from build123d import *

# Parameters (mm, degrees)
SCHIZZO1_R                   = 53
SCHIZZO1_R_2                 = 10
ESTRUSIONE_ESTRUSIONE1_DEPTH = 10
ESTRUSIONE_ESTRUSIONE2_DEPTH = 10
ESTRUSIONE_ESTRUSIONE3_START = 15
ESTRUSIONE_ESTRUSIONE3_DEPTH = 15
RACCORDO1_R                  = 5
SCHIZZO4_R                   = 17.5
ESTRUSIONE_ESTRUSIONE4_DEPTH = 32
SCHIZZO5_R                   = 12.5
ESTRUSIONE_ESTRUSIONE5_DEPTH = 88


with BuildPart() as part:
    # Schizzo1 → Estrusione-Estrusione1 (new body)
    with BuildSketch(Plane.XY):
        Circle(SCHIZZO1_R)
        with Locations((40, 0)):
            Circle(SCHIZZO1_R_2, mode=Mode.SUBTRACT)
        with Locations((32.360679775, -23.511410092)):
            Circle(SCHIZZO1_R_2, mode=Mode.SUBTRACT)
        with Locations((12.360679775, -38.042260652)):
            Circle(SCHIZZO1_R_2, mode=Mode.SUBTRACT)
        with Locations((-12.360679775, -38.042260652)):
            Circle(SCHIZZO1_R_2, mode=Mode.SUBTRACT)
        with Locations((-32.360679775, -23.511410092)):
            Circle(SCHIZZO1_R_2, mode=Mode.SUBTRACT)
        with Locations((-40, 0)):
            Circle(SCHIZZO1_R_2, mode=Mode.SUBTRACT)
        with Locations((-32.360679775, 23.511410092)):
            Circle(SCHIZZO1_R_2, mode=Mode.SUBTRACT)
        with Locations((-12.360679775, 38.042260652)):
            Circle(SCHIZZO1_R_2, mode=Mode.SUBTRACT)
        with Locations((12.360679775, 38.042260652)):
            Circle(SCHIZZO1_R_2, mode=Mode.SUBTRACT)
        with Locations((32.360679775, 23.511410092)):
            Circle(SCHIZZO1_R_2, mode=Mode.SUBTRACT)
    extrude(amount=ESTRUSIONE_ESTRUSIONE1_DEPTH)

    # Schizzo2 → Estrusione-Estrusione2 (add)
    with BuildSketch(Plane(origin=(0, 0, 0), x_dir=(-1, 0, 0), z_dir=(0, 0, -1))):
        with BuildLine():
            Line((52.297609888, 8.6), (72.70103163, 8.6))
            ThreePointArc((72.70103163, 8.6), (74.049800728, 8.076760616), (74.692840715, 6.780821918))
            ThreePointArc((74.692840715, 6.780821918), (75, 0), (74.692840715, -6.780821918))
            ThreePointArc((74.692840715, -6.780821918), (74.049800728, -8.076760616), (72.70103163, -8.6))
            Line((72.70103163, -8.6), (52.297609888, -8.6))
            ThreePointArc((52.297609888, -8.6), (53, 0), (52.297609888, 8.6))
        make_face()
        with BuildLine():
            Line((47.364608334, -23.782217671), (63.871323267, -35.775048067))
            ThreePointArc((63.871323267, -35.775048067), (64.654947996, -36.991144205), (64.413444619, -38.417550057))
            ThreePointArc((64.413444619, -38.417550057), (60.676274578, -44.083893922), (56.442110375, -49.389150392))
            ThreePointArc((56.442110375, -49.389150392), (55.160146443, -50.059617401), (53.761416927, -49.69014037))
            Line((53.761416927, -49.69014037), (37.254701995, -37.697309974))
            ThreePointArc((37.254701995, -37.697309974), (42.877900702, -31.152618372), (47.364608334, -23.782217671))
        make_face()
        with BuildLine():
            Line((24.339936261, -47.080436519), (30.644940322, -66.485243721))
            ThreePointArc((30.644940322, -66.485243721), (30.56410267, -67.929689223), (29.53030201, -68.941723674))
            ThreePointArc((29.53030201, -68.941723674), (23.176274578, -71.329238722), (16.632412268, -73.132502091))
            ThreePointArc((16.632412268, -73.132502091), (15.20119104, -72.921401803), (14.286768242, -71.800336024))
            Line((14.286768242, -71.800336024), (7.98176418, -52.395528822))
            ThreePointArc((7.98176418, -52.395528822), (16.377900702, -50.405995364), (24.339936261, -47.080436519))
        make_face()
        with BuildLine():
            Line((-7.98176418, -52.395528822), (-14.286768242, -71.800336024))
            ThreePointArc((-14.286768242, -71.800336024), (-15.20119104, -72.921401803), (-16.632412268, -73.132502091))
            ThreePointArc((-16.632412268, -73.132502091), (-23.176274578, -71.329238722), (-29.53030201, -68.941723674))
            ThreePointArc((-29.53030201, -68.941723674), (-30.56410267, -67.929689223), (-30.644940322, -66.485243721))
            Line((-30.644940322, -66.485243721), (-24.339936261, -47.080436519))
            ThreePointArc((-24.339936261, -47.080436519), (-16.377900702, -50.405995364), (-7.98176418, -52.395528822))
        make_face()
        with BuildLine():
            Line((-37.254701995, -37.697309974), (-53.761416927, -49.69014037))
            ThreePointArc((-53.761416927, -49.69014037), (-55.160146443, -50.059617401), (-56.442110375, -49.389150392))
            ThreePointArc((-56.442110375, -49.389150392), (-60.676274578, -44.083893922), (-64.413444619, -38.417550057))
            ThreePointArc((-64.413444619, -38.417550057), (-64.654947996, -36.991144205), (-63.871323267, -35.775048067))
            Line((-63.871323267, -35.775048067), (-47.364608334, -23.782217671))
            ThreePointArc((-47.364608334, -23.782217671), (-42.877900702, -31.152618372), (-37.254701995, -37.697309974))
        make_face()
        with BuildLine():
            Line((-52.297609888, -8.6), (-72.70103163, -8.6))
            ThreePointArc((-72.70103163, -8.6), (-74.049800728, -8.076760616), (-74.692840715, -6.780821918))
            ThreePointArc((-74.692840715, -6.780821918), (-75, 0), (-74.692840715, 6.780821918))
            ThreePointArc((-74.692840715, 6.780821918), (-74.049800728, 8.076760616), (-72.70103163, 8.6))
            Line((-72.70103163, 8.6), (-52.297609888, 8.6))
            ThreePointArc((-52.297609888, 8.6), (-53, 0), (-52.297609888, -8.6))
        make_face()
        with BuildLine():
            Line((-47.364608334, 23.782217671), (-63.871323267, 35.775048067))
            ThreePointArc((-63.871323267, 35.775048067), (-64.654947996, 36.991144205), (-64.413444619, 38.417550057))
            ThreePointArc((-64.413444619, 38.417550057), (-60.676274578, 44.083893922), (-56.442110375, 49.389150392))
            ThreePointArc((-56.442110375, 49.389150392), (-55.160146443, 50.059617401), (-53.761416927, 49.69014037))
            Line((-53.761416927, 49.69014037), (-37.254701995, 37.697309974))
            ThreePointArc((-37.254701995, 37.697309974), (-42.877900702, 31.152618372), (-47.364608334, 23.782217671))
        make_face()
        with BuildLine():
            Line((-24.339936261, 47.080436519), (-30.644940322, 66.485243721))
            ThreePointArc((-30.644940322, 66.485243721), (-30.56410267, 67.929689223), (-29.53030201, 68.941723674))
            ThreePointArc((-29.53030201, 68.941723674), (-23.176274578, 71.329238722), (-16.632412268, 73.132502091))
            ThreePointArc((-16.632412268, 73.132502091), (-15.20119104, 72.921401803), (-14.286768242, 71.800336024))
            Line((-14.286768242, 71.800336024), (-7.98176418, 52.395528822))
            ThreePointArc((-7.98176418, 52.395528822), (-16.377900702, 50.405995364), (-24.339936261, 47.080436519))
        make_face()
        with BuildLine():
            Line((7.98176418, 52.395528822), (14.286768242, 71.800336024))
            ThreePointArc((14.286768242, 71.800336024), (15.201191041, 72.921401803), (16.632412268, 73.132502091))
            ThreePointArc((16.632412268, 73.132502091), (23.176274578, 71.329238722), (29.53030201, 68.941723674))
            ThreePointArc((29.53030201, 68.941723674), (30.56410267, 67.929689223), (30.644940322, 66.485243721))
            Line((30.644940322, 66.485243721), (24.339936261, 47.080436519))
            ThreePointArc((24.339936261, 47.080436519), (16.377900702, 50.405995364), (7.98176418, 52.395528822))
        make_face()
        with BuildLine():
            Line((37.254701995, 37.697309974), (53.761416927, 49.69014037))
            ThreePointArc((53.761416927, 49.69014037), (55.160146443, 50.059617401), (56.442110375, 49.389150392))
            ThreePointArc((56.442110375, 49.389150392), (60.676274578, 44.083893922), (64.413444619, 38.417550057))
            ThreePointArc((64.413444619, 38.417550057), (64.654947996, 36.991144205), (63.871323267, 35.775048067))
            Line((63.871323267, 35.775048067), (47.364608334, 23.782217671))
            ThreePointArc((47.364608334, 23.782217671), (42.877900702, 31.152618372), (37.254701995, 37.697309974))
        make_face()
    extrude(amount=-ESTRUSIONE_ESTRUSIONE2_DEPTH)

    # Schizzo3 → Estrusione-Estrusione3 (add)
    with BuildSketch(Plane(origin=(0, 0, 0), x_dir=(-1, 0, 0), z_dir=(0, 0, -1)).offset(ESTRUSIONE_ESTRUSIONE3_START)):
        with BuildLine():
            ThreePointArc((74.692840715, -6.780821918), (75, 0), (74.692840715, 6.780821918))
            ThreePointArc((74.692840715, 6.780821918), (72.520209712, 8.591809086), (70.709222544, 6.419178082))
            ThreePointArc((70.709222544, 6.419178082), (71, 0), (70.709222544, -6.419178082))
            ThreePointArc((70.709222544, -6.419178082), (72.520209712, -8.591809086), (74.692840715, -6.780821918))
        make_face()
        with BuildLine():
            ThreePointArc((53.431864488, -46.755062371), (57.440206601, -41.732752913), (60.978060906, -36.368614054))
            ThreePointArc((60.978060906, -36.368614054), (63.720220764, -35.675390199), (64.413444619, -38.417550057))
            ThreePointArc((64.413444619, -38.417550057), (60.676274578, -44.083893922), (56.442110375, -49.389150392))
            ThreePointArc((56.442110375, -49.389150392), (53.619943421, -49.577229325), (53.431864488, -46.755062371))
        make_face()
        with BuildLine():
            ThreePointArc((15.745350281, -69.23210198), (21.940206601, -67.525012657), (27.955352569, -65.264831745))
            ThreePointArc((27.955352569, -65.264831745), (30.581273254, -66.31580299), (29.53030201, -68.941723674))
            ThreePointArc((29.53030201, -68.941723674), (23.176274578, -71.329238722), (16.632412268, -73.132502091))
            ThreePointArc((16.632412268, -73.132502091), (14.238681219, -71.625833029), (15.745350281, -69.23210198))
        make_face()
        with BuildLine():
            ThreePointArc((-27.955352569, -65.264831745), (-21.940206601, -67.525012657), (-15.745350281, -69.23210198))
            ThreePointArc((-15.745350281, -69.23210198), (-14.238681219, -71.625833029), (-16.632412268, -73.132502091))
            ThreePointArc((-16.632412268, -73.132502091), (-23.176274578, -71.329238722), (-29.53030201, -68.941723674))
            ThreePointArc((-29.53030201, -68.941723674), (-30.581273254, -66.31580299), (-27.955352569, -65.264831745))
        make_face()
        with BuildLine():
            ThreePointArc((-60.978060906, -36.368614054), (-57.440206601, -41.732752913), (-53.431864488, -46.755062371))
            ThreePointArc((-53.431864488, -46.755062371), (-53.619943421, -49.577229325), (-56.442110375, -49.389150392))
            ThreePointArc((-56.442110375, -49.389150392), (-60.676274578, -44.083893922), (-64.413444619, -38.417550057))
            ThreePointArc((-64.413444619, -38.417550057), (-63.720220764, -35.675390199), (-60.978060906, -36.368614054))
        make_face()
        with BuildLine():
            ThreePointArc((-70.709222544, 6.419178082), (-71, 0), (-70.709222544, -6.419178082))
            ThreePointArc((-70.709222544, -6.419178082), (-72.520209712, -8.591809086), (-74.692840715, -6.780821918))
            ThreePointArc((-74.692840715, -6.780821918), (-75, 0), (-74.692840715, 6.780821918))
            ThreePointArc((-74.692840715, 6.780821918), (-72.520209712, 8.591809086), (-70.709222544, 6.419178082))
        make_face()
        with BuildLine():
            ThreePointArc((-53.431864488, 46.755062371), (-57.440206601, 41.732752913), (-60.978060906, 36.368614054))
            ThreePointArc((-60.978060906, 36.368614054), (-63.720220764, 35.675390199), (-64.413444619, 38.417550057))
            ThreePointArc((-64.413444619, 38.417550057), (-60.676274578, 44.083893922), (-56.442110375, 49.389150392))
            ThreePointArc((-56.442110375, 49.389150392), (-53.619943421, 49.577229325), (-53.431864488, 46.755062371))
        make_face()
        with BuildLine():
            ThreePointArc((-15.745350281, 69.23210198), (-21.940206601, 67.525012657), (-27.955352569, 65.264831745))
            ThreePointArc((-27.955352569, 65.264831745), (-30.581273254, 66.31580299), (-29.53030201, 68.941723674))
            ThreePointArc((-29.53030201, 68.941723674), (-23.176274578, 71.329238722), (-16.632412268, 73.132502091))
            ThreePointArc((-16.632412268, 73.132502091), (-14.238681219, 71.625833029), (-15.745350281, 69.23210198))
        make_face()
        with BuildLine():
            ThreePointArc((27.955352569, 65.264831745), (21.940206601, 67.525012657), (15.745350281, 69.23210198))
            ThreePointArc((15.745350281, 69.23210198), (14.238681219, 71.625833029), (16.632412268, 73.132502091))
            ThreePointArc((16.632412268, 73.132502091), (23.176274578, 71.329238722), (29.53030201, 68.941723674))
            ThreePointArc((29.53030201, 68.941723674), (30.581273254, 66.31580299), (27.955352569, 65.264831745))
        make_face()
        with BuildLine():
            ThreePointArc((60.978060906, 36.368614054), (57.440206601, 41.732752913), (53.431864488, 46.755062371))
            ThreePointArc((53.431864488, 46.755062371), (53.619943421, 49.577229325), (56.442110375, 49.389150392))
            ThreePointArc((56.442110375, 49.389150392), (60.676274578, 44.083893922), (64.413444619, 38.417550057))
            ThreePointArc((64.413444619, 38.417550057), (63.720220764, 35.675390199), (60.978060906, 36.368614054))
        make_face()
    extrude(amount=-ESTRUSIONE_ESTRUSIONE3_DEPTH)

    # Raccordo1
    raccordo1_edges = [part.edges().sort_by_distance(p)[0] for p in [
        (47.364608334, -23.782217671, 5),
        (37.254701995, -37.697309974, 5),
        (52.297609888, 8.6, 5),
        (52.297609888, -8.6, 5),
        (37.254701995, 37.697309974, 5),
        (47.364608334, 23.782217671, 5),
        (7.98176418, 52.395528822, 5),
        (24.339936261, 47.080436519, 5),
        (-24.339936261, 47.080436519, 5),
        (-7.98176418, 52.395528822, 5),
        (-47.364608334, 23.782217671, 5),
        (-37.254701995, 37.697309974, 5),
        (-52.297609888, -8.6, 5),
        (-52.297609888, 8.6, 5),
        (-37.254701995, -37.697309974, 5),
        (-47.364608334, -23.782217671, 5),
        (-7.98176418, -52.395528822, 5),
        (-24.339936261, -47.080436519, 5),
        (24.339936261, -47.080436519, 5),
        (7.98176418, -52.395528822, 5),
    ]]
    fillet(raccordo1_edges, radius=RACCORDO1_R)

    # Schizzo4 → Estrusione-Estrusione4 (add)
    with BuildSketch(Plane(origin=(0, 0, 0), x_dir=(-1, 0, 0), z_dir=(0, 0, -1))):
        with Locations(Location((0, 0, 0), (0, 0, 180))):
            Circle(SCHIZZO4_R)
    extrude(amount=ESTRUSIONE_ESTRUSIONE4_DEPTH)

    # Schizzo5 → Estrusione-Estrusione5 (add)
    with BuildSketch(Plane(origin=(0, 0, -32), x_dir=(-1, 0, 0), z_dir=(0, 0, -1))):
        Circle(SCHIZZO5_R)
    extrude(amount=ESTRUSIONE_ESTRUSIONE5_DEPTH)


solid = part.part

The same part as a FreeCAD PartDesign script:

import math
import FreeCAD as App
import Part
import Sketcher

V = App.Vector
Q = App.Units.Quantity


def edges_at(feature, points):
    """Names of the edges that pass closest to the given points."""
    edges = feature.Shape.Edges
    near = lambda p: min(range(len(edges)), key=lambda i: edges[i].distToShape(Part.Vertex(*p))[0])
    return sorted({f"Edge{near(p) + 1}" for p in points})

doc = App.newDocument("Part")
params = doc.addObject("Spreadsheet::Sheet", "Params")
for row, (alias, value) in enumerate([
    ("sketch1_diameter", "106 mm"),
    ("sketch1_diameter2", "20 mm"),
    ("pad1_length", "10 mm"),
    ("sketch2_radius", "53 mm"),
    ("sketch2_radius2", "2 mm"),
    ("sketch2_radius3", "75 mm"),
    ("pad2_length", "10 mm"),
    ("sketch3_radius", "75 mm"),
    ("sketch3_radius2", "2 mm"),
    ("pad3_length", "15 mm"),
    ("fillet_radius", "5 mm"),
    ("sketch4_diameter", "35 mm"),
    ("pad4_length", "32 mm"),
    ("sketch5_diameter", "25 mm"),
    ("pad5_length", "88 mm"),
], start=1):
    params.set(f"A{row}", alias)
    params.set(f"B{row}", "=" + value)
    params.setAlias(f"B{row}", alias)

body = doc.addObject("PartDesign::Body", "Body")

sketch1 = body.newObject("Sketcher::SketchObject", "Sketch")
sketch1.AttachmentSupport = (doc.getObject("XY_Plane"), [""])
sketch1.MapMode = "FlatFace"
sketch1.addGeometry([
    Part.Circle(V(0, 0, 0), V(0, 0, 1), 53),
    Part.Circle(V(-12, -38, 0), V(0, 0, 1), 10),
    Part.Circle(V(-32, -24, 0), V(0, 0, 1), 10),
    Part.Circle(V(12, -38, 0), V(0, 0, 1), 10),
    Part.Circle(V(32, -24, 0), V(0, 0, 1), 10),
    Part.Circle(V(-40, 0, 0), V(0, 0, 1), 10),
    Part.Circle(V(-32, 24, 0), V(0, 0, 1), 10),
    Part.Circle(V(-12, 38, 0), V(0, 0, 1), 10),
    Part.Circle(V(40, 0, 0), V(0, 0, 1), 10),
    Part.Circle(V(32, 24, 0), V(0, 0, 1), 10),
    Part.Circle(V(12, 38, 0), V(0, 0, 1), 10),
], False)
sketch1.addConstraint([
    Sketcher.Constraint("Coincident", 0, 3, -1, 1),
    Sketcher.Constraint("Equal", 1, 2),
    Sketcher.Constraint("Equal", 2, 3),
    Sketcher.Constraint("Equal", 3, 4),
    Sketcher.Constraint("Equal", 4, 5),
    Sketcher.Constraint("Equal", 5, 6),
    Sketcher.Constraint("Equal", 6, 7),
    Sketcher.Constraint("Equal", 7, 8),
    Sketcher.Constraint("Equal", 8, 9),
    Sketcher.Constraint("Equal", 9, 10),
    Sketcher.Constraint("Symmetric", 4, 3, 6, 3, -1, 1),
    Sketcher.Constraint("Symmetric", 3, 3, 7, 3, -1, 1),
    Sketcher.Constraint("Symmetric", 5, 3, 8, 3, -1, 1),
    Sketcher.Constraint("Symmetric", 2, 3, 9, 3, -1, 1),
    Sketcher.Constraint("Symmetric", 1, 3, 10, 3, -1, 1),
    Sketcher.Constraint("Symmetric", 1, 3, 3, 3, -2),
    Sketcher.Constraint("Symmetric", 2, 3, 4, 3, -2),
    Sketcher.Constraint("PointOnObject", 5, 3, -1),
    Sketcher.Constraint("Diameter", 0, Q("106 mm")),
    Sketcher.Constraint("Diameter", 1, Q("20 mm")),
    Sketcher.Constraint("DistanceX", 5, 3, -1, 1, Q("40 mm")),
    Sketcher.Constraint("DistanceX", 2, 3, 1, 3, Q("20 mm")),
    Sketcher.Constraint("DistanceX", 1, 3, -1, 1, Q("12.36068 mm")),
    Sketcher.Constraint("DistanceY", 1, 3, -1, 1, Q("38.042261 mm")),
    Sketcher.Constraint("DistanceY", 2, 3, -1, 1, Q("23.51141 mm")),
])
sketch1.setExpression("Constraints[18]", "Params.sketch1_diameter")
sketch1.setExpression("Constraints[19]", "Params.sketch1_diameter2")
pad1 = body.newObject("PartDesign::Pad", "Pad")
pad1.Profile = sketch1
pad1.setExpression("Length", "Params.pad1_length")

sketch2 = body.newObject("Sketcher::SketchObject", "Sketch001")
sketch2.AttachmentSupport = (doc.getObject("XY_Plane"), [""])
sketch2.MapMode = "FlatFace"
sketch2.addGeometry([
    Part.LineSegment(V(-72.7, 8.6, 0), V(-52.3, 8.6, 0)),
    Part.ArcOfCircle(Part.Circle(V(0, 0, 0), V(0, 0, 1), 53), math.radians(170.66), math.radians(189.34)),
    Part.LineSegment(V(-52.3, -8.6, 0), V(-72.7, -8.6, 0)),
    Part.ArcOfCircle(Part.Circle(V(-72.7, -6.6, 0), V(0, 0, 1), 2), math.radians(-175), math.radians(-90)),
    Part.ArcOfCircle(Part.Circle(V(0, 0, 0), V(0, 0, 1), 75), math.radians(174.81), math.radians(185.19)),
    Part.ArcOfCircle(Part.Circle(V(-72.7, 6.6, 0), V(0, 0, 1), 2), math.radians(90), math.radians(175)),
    Part.LineSegment(V(-63.9, -35.8, 0), V(-47.4, -23.8, 0)),
    Part.ArcOfCircle(Part.Circle(V(0, 0, 0), V(0, 0, 1), 53), math.radians(-153.34), math.radians(-134.66)),
    Part.LineSegment(V(-37.3, -37.7, 0), V(-53.8, -49.7, 0)),
    Part.ArcOfCircle(Part.Circle(V(-54.9, -48.1, 0), V(0, 0, 1), 2), math.radians(-139), math.radians(-54)),
    Part.ArcOfCircle(Part.Circle(V(0, 0, 0), V(0, 0, 1), 75), math.radians(-149.19), math.radians(-138.81)),
    Part.ArcOfCircle(Part.Circle(V(-62.7, -37.4, 0), V(0, 0, 1), 2), math.radians(126), math.radians(211)),
    Part.LineSegment(V(-30.6, -66.5, 0), V(-24.3, -47.1, 0)),
    Part.ArcOfCircle(Part.Circle(V(0, 0, 0), V(0, 0, 1), 53), math.radians(-117.34), math.radians(-98.66)),
    Part.LineSegment(V(-8, -52.4, 0), V(-14.3, -71.8, 0)),
    Part.ArcOfCircle(Part.Circle(V(-16.2, -71.2, 0), V(0, 0, 1), 2), math.radians(-103), math.radians(-18)),
    Part.ArcOfCircle(Part.Circle(V(0, 0, 0), V(0, 0, 1), 75), math.radians(-113.19), math.radians(-102.81)),
    Part.ArcOfCircle(Part.Circle(V(-28.7, -67.1, 0), V(0, 0, 1), 2), math.radians(162), math.radians(247)),
    Part.LineSegment(V(14.3, -71.8, 0), V(8, -52.4, 0)),
    Part.ArcOfCircle(Part.Circle(V(0, 0, 0), V(0, 0, 1), 53), math.radians(-81.34), math.radians(-62.66)),
    Part.LineSegment(V(24.3, -47.1, 0), V(30.6, -66.5, 0)),
    Part.ArcOfCircle(Part.Circle(V(28.7, -67.1, 0), V(0, 0, 1), 2), math.radians(-67), math.radians(18)),
    Part.ArcOfCircle(Part.Circle(V(0, 0, 0), V(0, 0, 1), 75), math.radians(-77.19), math.radians(-66.81)),
    Part.ArcOfCircle(Part.Circle(V(16.2, -71.2, 0), V(0, 0, 1), 2), math.radians(-162), math.radians(-77)),
    Part.LineSegment(V(53.8, -49.7, 0), V(37.3, -37.7, 0)),
    Part.ArcOfCircle(Part.Circle(V(0, 0, 0), V(0, 0, 1), 53), math.radians(-45.34), math.radians(-26.66)),
    Part.LineSegment(V(47.4, -23.8, 0), V(63.9, -35.8, 0)),
    Part.ArcOfCircle(Part.Circle(V(62.7, -37.4, 0), V(0, 0, 1), 2), math.radians(-31), math.radians(54)),
    Part.ArcOfCircle(Part.Circle(V(0, 0, 0), V(0, 0, 1), 75), math.radians(-41.19), math.radians(-30.81)),
    Part.ArcOfCircle(Part.Circle(V(54.9, -48.1, 0), V(0, 0, 1), 2), math.radians(-126), math.radians(-41)),
    Part.LineSegment(V(72.7, -8.6, 0), V(52.3, -8.6, 0)),
    Part.ArcOfCircle(Part.Circle(V(0, 0, 0), V(0, 0, 1), 53), math.radians(-9.34), math.radians(9.34)),
    Part.LineSegment(V(52.3, 8.6, 0), V(72.7, 8.6, 0)),
    Part.ArcOfCircle(Part.Circle(V(72.7, 6.6, 0), V(0, 0, 1), 2), math.radians(5), math.radians(90)),
    Part.ArcOfCircle(Part.Circle(V(0, 0, 0), V(0, 0, 1), 75), math.radians(-5.19), math.radians(5.19)),
    Part.ArcOfCircle(Part.Circle(V(72.7, -6.6, 0), V(0, 0, 1), 2), math.radians(-90), math.radians(-5)),
    Part.LineSegment(V(63.9, 35.8, 0), V(47.4, 23.8, 0)),
    Part.ArcOfCircle(Part.Circle(V(0, 0, 0), V(0, 0, 1), 53), math.radians(26.66), math.radians(45.34)),
    Part.LineSegment(V(37.3, 37.7, 0), V(53.8, 49.7, 0)),
    Part.ArcOfCircle(Part.Circle(V(54.9, 48.1, 0), V(0, 0, 1), 2), math.radians(41), math.radians(126)),
    Part.ArcOfCircle(Part.Circle(V(0, 0, 0), V(0, 0, 1), 75), math.radians(30.81), math.radians(41.19)),
    Part.ArcOfCircle(Part.Circle(V(62.7, 37.4, 0), V(0, 0, 1), 2), math.radians(-54), math.radians(31)),
    Part.LineSegment(V(30.6, 66.5, 0), V(24.3, 47.1, 0)),
    Part.ArcOfCircle(Part.Circle(V(0, 0, 0), V(0, 0, 1), 53), math.radians(62.66), math.radians(81.34)),
    Part.LineSegment(V(8, 52.4, 0), V(14.3, 71.8, 0)),
    Part.ArcOfCircle(Part.Circle(V(16.2, 71.2, 0), V(0, 0, 1), 2), math.radians(77), math.radians(162)),
    Part.ArcOfCircle(Part.Circle(V(0, 0, 0), V(0, 0, 1), 75), math.radians(66.81), math.radians(77.19)),
    Part.ArcOfCircle(Part.Circle(V(28.7, 67.1, 0), V(0, 0, 1), 2), math.radians(-18), math.radians(67)),
    Part.LineSegment(V(-14.3, 71.8, 0), V(-8, 52.4, 0)),
    Part.ArcOfCircle(Part.Circle(V(0, 0, 0), V(0, 0, 1), 53), math.radians(98.66), math.radians(117.34)),
    Part.LineSegment(V(-24.3, 47.1, 0), V(-30.6, 66.5, 0)),
    Part.ArcOfCircle(Part.Circle(V(-28.7, 67.1, 0), V(0, 0, 1), 2), math.radians(113), math.radians(198)),
    Part.ArcOfCircle(Part.Circle(V(0, 0, 0), V(0, 0, 1), 75), math.radians(102.81), math.radians(113.19)),
    Part.ArcOfCircle(Part.Circle(V(-16.2, 71.2, 0), V(0, 0, 1), 2), math.radians(18), math.radians(103)),
    Part.LineSegment(V(-53.8, 49.7, 0), V(-37.3, 37.7, 0)),
    Part.ArcOfCircle(Part.Circle(V(0, 0, 0), V(0, 0, 1), 53), math.radians(134.66), math.radians(153.34)),
    Part.LineSegment(V(-47.4, 23.8, 0), V(-63.9, 35.8, 0)),
    Part.ArcOfCircle(Part.Circle(V(-62.7, 37.4, 0), V(0, 0, 1), 2), math.radians(149), math.radians(234)),
    Part.ArcOfCircle(Part.Circle(V(0, 0, 0), V(0, 0, 1), 75), math.radians(138.81), math.radians(149.19)),
    Part.ArcOfCircle(Part.Circle(V(-54.9, 48.1, 0), V(0, 0, 1), 2), math.radians(54), math.radians(139)),
], False)
sketch2.addConstraint([
    Sketcher.Constraint("Coincident", 0, 2, 1, 1),
    Sketcher.Constraint("Coincident", 1, 2, 2, 1),
    Sketcher.Constraint("Tangent", 2, 2, 3, 2),
    Sketcher.Constraint("Tangent", 3, 1, 4, 2),
    Sketcher.Constraint("Tangent", 4, 1, 5, 2),
    Sketcher.Constraint("Tangent", 5, 1, 0, 1),
    Sketcher.Constraint("Coincident", 6, 2, 7, 1),
    Sketcher.Constraint("Coincident", 7, 2, 8, 1),
    Sketcher.Constraint("Tangent", 8, 2, 9, 2),
    Sketcher.Constraint("Tangent", 9, 1, 10, 2),
    Sketcher.Constraint("Tangent", 10, 1, 11, 2),
    Sketcher.Constraint("Tangent", 11, 1, 6, 1),
    Sketcher.Constraint("Coincident", 12, 2, 13, 1),
    Sketcher.Constraint("Coincident", 13, 2, 14, 1),
    Sketcher.Constraint("Tangent", 14, 2, 15, 2),
    Sketcher.Constraint("Tangent", 15, 1, 16, 2),
    Sketcher.Constraint("Tangent", 16, 1, 17, 2),
    Sketcher.Constraint("Tangent", 17, 1, 12, 1),
    Sketcher.Constraint("Coincident", 18, 2, 19, 1),
    Sketcher.Constraint("Coincident", 19, 2, 20, 1),
    Sketcher.Constraint("Tangent", 20, 2, 21, 2),
    Sketcher.Constraint("Tangent", 21, 1, 22, 2),
    Sketcher.Constraint("Tangent", 22, 1, 23, 2),
    Sketcher.Constraint("Tangent", 23, 1, 18, 1),
    Sketcher.Constraint("Coincident", 24, 2, 25, 1),
    Sketcher.Constraint("Coincident", 25, 2, 26, 1),
    Sketcher.Constraint("Tangent", 26, 2, 27, 2),
    Sketcher.Constraint("Tangent", 27, 1, 28, 2),
    Sketcher.Constraint("Tangent", 28, 1, 29, 2),
    Sketcher.Constraint("Tangent", 29, 1, 24, 1),
    Sketcher.Constraint("Coincident", 30, 2, 31, 1),
    Sketcher.Constraint("Coincident", 31, 2, 32, 1),
    Sketcher.Constraint("Tangent", 32, 2, 33, 2),
    Sketcher.Constraint("Tangent", 33, 1, 34, 2),
    Sketcher.Constraint("Tangent", 34, 1, 35, 2),
    Sketcher.Constraint("Tangent", 35, 1, 30, 1),
    Sketcher.Constraint("Coincident", 36, 2, 37, 1),
    Sketcher.Constraint("Coincident", 37, 2, 38, 1),
    Sketcher.Constraint("Tangent", 38, 2, 39, 2),
    Sketcher.Constraint("Tangent", 39, 1, 40, 2),
    Sketcher.Constraint("Tangent", 40, 1, 41, 2),
    Sketcher.Constraint("Tangent", 41, 1, 36, 1),
    Sketcher.Constraint("Coincident", 42, 2, 43, 1),
    Sketcher.Constraint("Coincident", 43, 2, 44, 1),
    Sketcher.Constraint("Tangent", 44, 2, 45, 2),
    Sketcher.Constraint("Tangent", 45, 1, 46, 2),
    Sketcher.Constraint("Tangent", 46, 1, 47, 2),
    Sketcher.Constraint("Tangent", 47, 1, 42, 1),
    Sketcher.Constraint("Coincident", 48, 2, 49, 1),
    Sketcher.Constraint("Coincident", 49, 2, 50, 1),
    Sketcher.Constraint("Tangent", 50, 2, 51, 2),
    Sketcher.Constraint("Tangent", 51, 1, 52, 2),
    Sketcher.Constraint("Tangent", 52, 1, 53, 2),
    Sketcher.Constraint("Tangent", 53, 1, 48, 1),
    Sketcher.Constraint("Coincident", 54, 2, 55, 1),
    Sketcher.Constraint("Coincident", 55, 2, 56, 1),
    Sketcher.Constraint("Tangent", 56, 2, 57, 2),
    Sketcher.Constraint("Tangent", 57, 1, 58, 2),
    Sketcher.Constraint("Tangent", 58, 1, 59, 2),
    Sketcher.Constraint("Tangent", 59, 1, 54, 1),
    Sketcher.Constraint("Horizontal", 0),
    Sketcher.Constraint("Horizontal", 2),
    Sketcher.Constraint("Horizontal", 30),
    Sketcher.Constraint("Horizontal", 32),
    Sketcher.Constraint("Coincident", 1, 3, -1, 1),
    Sketcher.Constraint("Coincident", 4, 3, -1, 1),
    Sketcher.Constraint("Coincident", 7, 3, -1, 1),
    Sketcher.Constraint("Coincident", 10, 3, -1, 1),
    Sketcher.Constraint("Coincident", 13, 3, -1, 1),
    Sketcher.Constraint("Coincident", 16, 3, -1, 1),
    Sketcher.Constraint("Coincident", 19, 3, -1, 1),
    Sketcher.Constraint("Coincident", 22, 3, -1, 1),
    Sketcher.Constraint("Coincident", 25, 3, -1, 1),
    Sketcher.Constraint("Coincident", 28, 3, -1, 1),
    Sketcher.Constraint("Coincident", 31, 3, -1, 1),
    Sketcher.Constraint("Coincident", 34, 3, -1, 1),
    Sketcher.Constraint("Coincident", 37, 3, -1, 1),
    Sketcher.Constraint("Coincident", 40, 3, -1, 1),
    Sketcher.Constraint("Coincident", 43, 3, -1, 1),
    Sketcher.Constraint("Coincident", 46, 3, -1, 1),
    Sketcher.Constraint("Coincident", 49, 3, -1, 1),
    Sketcher.Constraint("Coincident", 52, 3, -1, 1),
    Sketcher.Constraint("Coincident", 55, 3, -1, 1),
    Sketcher.Constraint("Coincident", 58, 3, -1, 1),
    Sketcher.Constraint("Equal", 3, 5),
    Sketcher.Constraint("Equal", 1, 7),
    Sketcher.Constraint("Equal", 5, 9),
    Sketcher.Constraint("Equal", 4, 10),
    Sketcher.Constraint("Equal", 9, 11),
    Sketcher.Constraint("Equal", 7, 13),
    Sketcher.Constraint("Equal", 11, 15),
    Sketcher.Constraint("Equal", 10, 16),
    Sketcher.Constraint("Equal", 15, 17),
    Sketcher.Constraint("Equal", 13, 19),
    Sketcher.Constraint("Equal", 17, 21),
    Sketcher.Constraint("Equal", 16, 22),
    Sketcher.Constraint("Equal", 21, 23),
    Sketcher.Constraint("Equal", 19, 25),
    Sketcher.Constraint("Equal", 23, 27),
    Sketcher.Constraint("Equal", 22, 28),
    Sketcher.Constraint("Equal", 27, 29),
    Sketcher.Constraint("Equal", 25, 31),
    Sketcher.Constraint("Equal", 29, 33),
    Sketcher.Constraint("Equal", 28, 34),
    Sketcher.Constraint("Equal", 33, 35),
    Sketcher.Constraint("Equal", 31, 37),
    Sketcher.Constraint("Equal", 35, 39),
    Sketcher.Constraint("Equal", 34, 40),
    Sketcher.Constraint("Equal", 39, 41),
    Sketcher.Constraint("Equal", 37, 43),
    Sketcher.Constraint("Equal", 41, 45),
    Sketcher.Constraint("Equal", 40, 46),
    Sketcher.Constraint("Equal", 45, 47),
    Sketcher.Constraint("Equal", 43, 49),
    Sketcher.Constraint("Equal", 47, 51),
    Sketcher.Constraint("Equal", 46, 52),
    Sketcher.Constraint("Equal", 51, 53),
    Sketcher.Constraint("Equal", 49, 55),
    Sketcher.Constraint("Equal", 53, 57),
    Sketcher.Constraint("Equal", 52, 58),
    Sketcher.Constraint("Equal", 57, 59),
    Sketcher.Constraint("Symmetric", 8, 2, 38, 2, -1, 1),
    Sketcher.Constraint("Symmetric", 11, 1, 41, 1, -1, 1),
    Sketcher.Constraint("Symmetric", 14, 2, 44, 2, -1, 1),
    Sketcher.Constraint("Symmetric", 17, 1, 47, 1, -1, 1),
    Sketcher.Constraint("Symmetric", 20, 2, 50, 2, -1, 1),
    Sketcher.Constraint("Symmetric", 23, 1, 53, 1, -1, 1),
    Sketcher.Constraint("Symmetric", 26, 2, 56, 2, -1, 1),
    Sketcher.Constraint("Symmetric", 29, 1, 59, 1, -1, 1),
    Sketcher.Constraint("Symmetric", 17, 1, 20, 2, -2),
    Sketcher.Constraint("Symmetric", 14, 2, 23, 1, -2),
    Sketcher.Constraint("Symmetric", 11, 1, 26, 2, -2),
    Sketcher.Constraint("Symmetric", 8, 2, 29, 1, -2),
    Sketcher.Constraint("Parallel", 6, 8),
    Sketcher.Constraint("Parallel", 12, 14),
    Sketcher.Constraint("Horizontal", 5, 3, 33, 3),
    Sketcher.Constraint("Horizontal", 3, 3, 35, 3),
    Sketcher.Constraint("Vertical", 3, 3, 5, 3),
    Sketcher.Constraint("Equal", 6, 8),
    Sketcher.Constraint("Equal", 8, 12),
    Sketcher.Constraint("Equal", 12, 14),
    Sketcher.Constraint("Radius", 1, Q("53 mm")),
    Sketcher.Constraint("Radius", 3, Q("2 mm")),
    Sketcher.Constraint("Radius", 4, Q("75 mm")),
    Sketcher.Constraint("Angle", 6, Q("36 deg")),
    Sketcher.Constraint("Angle", 12, Q("72 deg")),
    Sketcher.Constraint("DistanceY", 3, 3, -1, 1, Q("6.6 mm")),
    Sketcher.Constraint("DistanceX", 7, 2, -1, 1, Q("37.254702 mm")),
])
sketch2.setExpression("Constraints[141]", "Params.sketch2_radius")
sketch2.setExpression("Constraints[142]", "Params.sketch2_radius2")
sketch2.setExpression("Constraints[143]", "Params.sketch2_radius3")
pad2 = body.newObject("PartDesign::Pad", "Pad001")
pad2.Profile = sketch2
pad2.setExpression("Length", "Params.pad2_length")

sketch3 = body.newObject("Sketcher::SketchObject", "Sketch002")
sketch3.AttachmentSupport = (doc.getObject("XY_Plane"), [""])
sketch3.MapMode = "FlatFace"
sketch3.AttachmentOffset = App.Placement(V(0, 0, -15), App.Rotation())
sketch3.addGeometry([
    Part.ArcOfCircle(Part.Circle(V(0, 0, 0), V(0, 0, 1), 75), math.radians(174.81), math.radians(185.19)),
    Part.ArcOfCircle(Part.Circle(V(-72.7, 6.6, 0), V(0, 0, 1), 2), math.radians(-5), math.radians(175)),
    Part.ArcOfCircle(Part.Circle(V(0, 0, 0), V(0, 0, 1), 71), math.radians(174.81), math.radians(185.19)),
    Part.ArcOfCircle(Part.Circle(V(-72.7, -6.6, 0), V(0, 0, 1), 2), math.radians(-175), math.radians(5)),
    Part.ArcOfCircle(Part.Circle(V(0, 0, 0), V(0, 0, 1), 71), math.radians(-149.19), math.radians(-138.81)),
    Part.ArcOfCircle(Part.Circle(V(-54.9, -48.1, 0), V(0, 0, 1), 2), math.radians(-139), math.radians(41)),
    Part.ArcOfCircle(Part.Circle(V(0, 0, 0), V(0, 0, 1), 75), math.radians(-149.19), math.radians(-138.81)),
    Part.ArcOfCircle(Part.Circle(V(-62.7, -37.4, 0), V(0, 0, 1), 2), math.radians(31), math.radians(211)),
    Part.ArcOfCircle(Part.Circle(V(0, 0, 0), V(0, 0, 1), 71), math.radians(-113.19), math.radians(-102.81)),
    Part.ArcOfCircle(Part.Circle(V(-16.2, -71.2, 0), V(0, 0, 1), 2), math.radians(-103), math.radians(77)),
    Part.ArcOfCircle(Part.Circle(V(0, 0, 0), V(0, 0, 1), 75), math.radians(-113.19), math.radians(-102.81)),
    Part.ArcOfCircle(Part.Circle(V(-28.7, -67.1, 0), V(0, 0, 1), 2), math.radians(67), math.radians(247)),
    Part.ArcOfCircle(Part.Circle(V(0, 0, 0), V(0, 0, 1), 71), math.radians(-77.19), math.radians(-66.81)),
    Part.ArcOfCircle(Part.Circle(V(28.7, -67.1, 0), V(0, 0, 1), 2), math.radians(-67), math.radians(113)),
    Part.ArcOfCircle(Part.Circle(V(0, 0, 0), V(0, 0, 1), 75), math.radians(-77.19), math.radians(-66.81)),
    Part.ArcOfCircle(Part.Circle(V(16.2, -71.2, 0), V(0, 0, 1), 2), math.radians(103), math.radians(283)),
    Part.ArcOfCircle(Part.Circle(V(0, 0, 0), V(0, 0, 1), 71), math.radians(-41.19), math.radians(-30.81)),
    Part.ArcOfCircle(Part.Circle(V(62.7, -37.4, 0), V(0, 0, 1), 2), math.radians(-31), math.radians(149)),
    Part.ArcOfCircle(Part.Circle(V(0, 0, 0), V(0, 0, 1), 75), math.radians(-41.19), math.radians(-30.81)),
    Part.ArcOfCircle(Part.Circle(V(54.9, -48.1, 0), V(0, 0, 1), 2), math.radians(139), math.radians(319)),
    Part.ArcOfCircle(Part.Circle(V(0, 0, 0), V(0, 0, 1), 71), math.radians(-5.19), math.radians(5.19)),
    Part.ArcOfCircle(Part.Circle(V(72.7, 6.6, 0), V(0, 0, 1), 2), math.radians(5), math.radians(185)),
    Part.ArcOfCircle(Part.Circle(V(0, 0, 0), V(0, 0, 1), 75), math.radians(-5.19), math.radians(5.19)),
    Part.ArcOfCircle(Part.Circle(V(72.7, -6.6, 0), V(0, 0, 1), 2), math.radians(175), math.radians(355)),
    Part.ArcOfCircle(Part.Circle(V(0, 0, 0), V(0, 0, 1), 71), math.radians(30.81), math.radians(41.19)),
    Part.ArcOfCircle(Part.Circle(V(54.9, 48.1, 0), V(0, 0, 1), 2), math.radians(41), math.radians(221)),
    Part.ArcOfCircle(Part.Circle(V(0, 0, 0), V(0, 0, 1), 75), math.radians(30.81), math.radians(41.19)),
    Part.ArcOfCircle(Part.Circle(V(62.7, 37.4, 0), V(0, 0, 1), 2), math.radians(-149), math.radians(31)),
    Part.ArcOfCircle(Part.Circle(V(0, 0, 0), V(0, 0, 1), 71), math.radians(66.81), math.radians(77.19)),
    Part.ArcOfCircle(Part.Circle(V(16.2, 71.2, 0), V(0, 0, 1), 2), math.radians(77), math.radians(257)),
    Part.ArcOfCircle(Part.Circle(V(0, 0, 0), V(0, 0, 1), 75), math.radians(66.81), math.radians(77.19)),
    Part.ArcOfCircle(Part.Circle(V(28.7, 67.1, 0), V(0, 0, 1), 2), math.radians(-113), math.radians(67)),
    Part.ArcOfCircle(Part.Circle(V(0, 0, 0), V(0, 0, 1), 71), math.radians(102.81), math.radians(113.19)),
    Part.ArcOfCircle(Part.Circle(V(-28.7, 67.1, 0), V(0, 0, 1), 2), math.radians(113), math.radians(293)),
    Part.ArcOfCircle(Part.Circle(V(0, 0, 0), V(0, 0, 1), 75), math.radians(102.81), math.radians(113.19)),
    Part.ArcOfCircle(Part.Circle(V(-16.2, 71.2, 0), V(0, 0, 1), 2), math.radians(-77), math.radians(103)),
    Part.ArcOfCircle(Part.Circle(V(0, 0, 0), V(0, 0, 1), 71), math.radians(138.81), math.radians(149.19)),
    Part.ArcOfCircle(Part.Circle(V(-62.7, 37.4, 0), V(0, 0, 1), 2), math.radians(149), math.radians(329)),
    Part.ArcOfCircle(Part.Circle(V(0, 0, 0), V(0, 0, 1), 75), math.radians(138.81), math.radians(149.19)),
    Part.ArcOfCircle(Part.Circle(V(-54.9, 48.1, 0), V(0, 0, 1), 2), math.radians(-41), math.radians(139)),
], False)
sketch3.addConstraint([
    Sketcher.Constraint("Tangent", 0, 1, 1, 2),
    Sketcher.Constraint("Tangent", 1, 1, 2, 1),
    Sketcher.Constraint("Tangent", 2, 2, 3, 2),
    Sketcher.Constraint("Tangent", 3, 1, 0, 2),
    Sketcher.Constraint("Tangent", 4, 2, 5, 2),
    Sketcher.Constraint("Tangent", 5, 1, 6, 2),
    Sketcher.Constraint("Tangent", 6, 1, 7, 2),
    Sketcher.Constraint("Tangent", 7, 1, 4, 1),
    Sketcher.Constraint("Tangent", 8, 2, 9, 2),
    Sketcher.Constraint("Tangent", 9, 1, 10, 2),
    Sketcher.Constraint("Tangent", 10, 1, 11, 2),
    Sketcher.Constraint("Tangent", 11, 1, 8, 1),
    Sketcher.Constraint("Tangent", 12, 2, 13, 2),
    Sketcher.Constraint("Tangent", 13, 1, 14, 2),
    Sketcher.Constraint("Tangent", 14, 1, 15, 2),
    Sketcher.Constraint("Tangent", 15, 1, 12, 1),
    Sketcher.Constraint("Tangent", 16, 2, 17, 2),
    Sketcher.Constraint("Tangent", 17, 1, 18, 2),
    Sketcher.Constraint("Tangent", 18, 1, 19, 2),
    Sketcher.Constraint("Tangent", 19, 1, 16, 1),
    Sketcher.Constraint("Tangent", 20, 2, 21, 2),
    Sketcher.Constraint("Tangent", 21, 1, 22, 2),
    Sketcher.Constraint("Tangent", 22, 1, 23, 2),
    Sketcher.Constraint("Tangent", 23, 1, 20, 1),
    Sketcher.Constraint("Tangent", 24, 2, 25, 2),
    Sketcher.Constraint("Tangent", 25, 1, 26, 2),
    Sketcher.Constraint("Tangent", 26, 1, 27, 2),
    Sketcher.Constraint("Tangent", 27, 1, 24, 1),
    Sketcher.Constraint("Tangent", 28, 2, 29, 2),
    Sketcher.Constraint("Tangent", 29, 1, 30, 2),
    Sketcher.Constraint("Tangent", 30, 1, 31, 2),
    Sketcher.Constraint("Tangent", 31, 1, 28, 1),
    Sketcher.Constraint("Tangent", 32, 2, 33, 2),
    Sketcher.Constraint("Tangent", 33, 1, 34, 2),
    Sketcher.Constraint("Tangent", 34, 1, 35, 2),
    Sketcher.Constraint("Tangent", 35, 1, 32, 1),
    Sketcher.Constraint("Tangent", 36, 2, 37, 2),
    Sketcher.Constraint("Tangent", 37, 1, 38, 2),
    Sketcher.Constraint("Tangent", 38, 1, 39, 2),
    Sketcher.Constraint("Tangent", 39, 1, 36, 1),
    Sketcher.Constraint("Coincident", 0, 3, -1, 1),
    Sketcher.Constraint("Coincident", 2, 3, -1, 1),
    Sketcher.Constraint("Coincident", 4, 3, -1, 1),
    Sketcher.Constraint("Coincident", 6, 3, -1, 1),
    Sketcher.Constraint("Coincident", 8, 3, -1, 1),
    Sketcher.Constraint("Coincident", 10, 3, -1, 1),
    Sketcher.Constraint("Coincident", 12, 3, -1, 1),
    Sketcher.Constraint("Coincident", 14, 3, -1, 1),
    Sketcher.Constraint("Coincident", 16, 3, -1, 1),
    Sketcher.Constraint("Coincident", 18, 3, -1, 1),
    Sketcher.Constraint("Coincident", 20, 3, -1, 1),
    Sketcher.Constraint("Coincident", 22, 3, -1, 1),
    Sketcher.Constraint("Coincident", 24, 3, -1, 1),
    Sketcher.Constraint("Coincident", 26, 3, -1, 1),
    Sketcher.Constraint("Coincident", 28, 3, -1, 1),
    Sketcher.Constraint("Coincident", 30, 3, -1, 1),
    Sketcher.Constraint("Coincident", 32, 3, -1, 1),
    Sketcher.Constraint("Coincident", 34, 3, -1, 1),
    Sketcher.Constraint("Coincident", 36, 3, -1, 1),
    Sketcher.Constraint("Coincident", 38, 3, -1, 1),
    Sketcher.Constraint("Equal", 2, 4),
    Sketcher.Constraint("Equal", 3, 5),
    Sketcher.Constraint("Equal", 4, 8),
    Sketcher.Constraint("Equal", 7, 9),
    Sketcher.Constraint("Equal", 8, 12),
    Sketcher.Constraint("Equal", 11, 13),
    Sketcher.Constraint("Equal", 12, 16),
    Sketcher.Constraint("Equal", 15, 17),
    Sketcher.Constraint("Equal", 16, 20),
    Sketcher.Constraint("Equal", 19, 21),
    Sketcher.Constraint("Equal", 20, 24),
    Sketcher.Constraint("Equal", 23, 25),
    Sketcher.Constraint("Equal", 24, 28),
    Sketcher.Constraint("Equal", 27, 29),
    Sketcher.Constraint("Equal", 28, 32),
    Sketcher.Constraint("Equal", 31, 33),
    Sketcher.Constraint("Equal", 32, 36),
    Sketcher.Constraint("Equal", 35, 37),
    Sketcher.Constraint("Horizontal", 11, 3, 13, 3),
    Sketcher.Constraint("Horizontal", 9, 3, 15, 3),
    Sketcher.Constraint("Horizontal", 7, 3, 17, 3),
    Sketcher.Constraint("Horizontal", 5, 3, 19, 3),
    Sketcher.Constraint("Horizontal", 1, 3, 21, 3),
    Sketcher.Constraint("Horizontal", 3, 3, 23, 3),
    Sketcher.Constraint("Horizontal", 31, 3, 33, 3),
    Sketcher.Constraint("Horizontal", 29, 3, 35, 3),
    Sketcher.Constraint("Horizontal", 27, 3, 37, 3),
    Sketcher.Constraint("Horizontal", 25, 3, 39, 3),
    Sketcher.Constraint("Vertical", 1, 3, 3, 3),
    Sketcher.Constraint("Vertical", 19, 3, 25, 3),
    Sketcher.Constraint("Vertical", 17, 3, 27, 3),
    Sketcher.Constraint("Vertical", 15, 3, 29, 3),
    Sketcher.Constraint("Vertical", 13, 3, 31, 3),
    Sketcher.Constraint("Radius", 0, Q("75 mm")),
    Sketcher.Constraint("Radius", 1, Q("2 mm")),
    Sketcher.Constraint("DistanceY", -1, 1, 1, 3, Q("6.6 mm")),
    Sketcher.Constraint("DistanceY", 8, 2, -1, 1, Q("69.232102 mm")),
    Sketcher.Constraint("DistanceX", 5, 1, -1, 1, Q("56.44211 mm")),
    Sketcher.Constraint("DistanceY", 6, 1, -1, 1, Q("38.41755 mm")),
    Sketcher.Constraint("DistanceY", 11, 1, -1, 1, Q("65.264832 mm")),
])
sketch3.setExpression("Constraints[93]", "Params.sketch3_radius")
sketch3.setExpression("Constraints[94]", "Params.sketch3_radius2")
pad3 = body.newObject("PartDesign::Pad", "Pad002")
pad3.Profile = sketch3
pad3.setExpression("Length", "Params.pad3_length")
doc.recompute()

fillet = body.newObject("PartDesign::Fillet", "Fillet")
fillet.Base = (pad3, edges_at(pad3, [
    (47.365, -23.782, 5),
    (37.255, -37.697, 5),
    (52.298, 8.6, 5),
    (52.298, -8.6, 5),
    (37.255, 37.697, 5),
    (47.365, 23.782, 5),
    (7.982, 52.396, 5),
    (24.34, 47.08, 5),
    (-24.34, 47.08, 5),
    (-7.982, 52.396, 5),
    (-47.365, 23.782, 5),
    (-37.255, 37.697, 5),
    (-52.298, -8.6, 5),
    (-52.298, 8.6, 5),
    (-37.255, -37.697, 5),
    (-47.365, -23.782, 5),
    (-7.982, -52.396, 5),
    (-24.34, -47.08, 5),
    (24.34, -47.08, 5),
    (7.982, -52.396, 5),
]))
fillet.setExpression("Radius", "Params.fillet_radius")

sketch4 = body.newObject("Sketcher::SketchObject", "Sketch003")
sketch4.AttachmentSupport = (doc.getObject("XY_Plane"), [""])
sketch4.MapMode = "FlatFace"
sketch4.addGeometry(Part.Circle(V(0, 0, 0), V(0, 0, 1), 18), False)
sketch4.addConstraint([
    Sketcher.Constraint("Coincident", 0, 3, -1, 1),
    Sketcher.Constraint("Diameter", 0, Q("35 mm")),
])
sketch4.setExpression("Constraints[1]", "Params.sketch4_diameter")
pad4 = body.newObject("PartDesign::Pad", "Pad003")
pad4.Profile = sketch4
pad4.setExpression("Length", "Params.pad4_length")
pad4.Reversed = True

sketch5 = body.newObject("Sketcher::SketchObject", "Sketch004")
sketch5.AttachmentSupport = (doc.getObject("XY_Plane"), [""])
sketch5.MapMode = "FlatFace"
sketch5.AttachmentOffset = App.Placement(V(0, 0, -32), App.Rotation())
sketch5.addGeometry(Part.Circle(V(0, 0, 0), V(0, 0, 1), 12), False)
sketch5.addConstraint([
    Sketcher.Constraint("Coincident", 0, 3, -1, 1),
    Sketcher.Constraint("Diameter", 0, Q("25 mm")),
])
sketch5.setExpression("Constraints[1]", "Params.sketch5_diameter")
pad5 = body.newObject("PartDesign::Pad", "Pad004")
pad5.Profile = sketch5
pad5.setExpression("Length", "Params.pad5_length")
pad5.Reversed = True

doc.recompute()
